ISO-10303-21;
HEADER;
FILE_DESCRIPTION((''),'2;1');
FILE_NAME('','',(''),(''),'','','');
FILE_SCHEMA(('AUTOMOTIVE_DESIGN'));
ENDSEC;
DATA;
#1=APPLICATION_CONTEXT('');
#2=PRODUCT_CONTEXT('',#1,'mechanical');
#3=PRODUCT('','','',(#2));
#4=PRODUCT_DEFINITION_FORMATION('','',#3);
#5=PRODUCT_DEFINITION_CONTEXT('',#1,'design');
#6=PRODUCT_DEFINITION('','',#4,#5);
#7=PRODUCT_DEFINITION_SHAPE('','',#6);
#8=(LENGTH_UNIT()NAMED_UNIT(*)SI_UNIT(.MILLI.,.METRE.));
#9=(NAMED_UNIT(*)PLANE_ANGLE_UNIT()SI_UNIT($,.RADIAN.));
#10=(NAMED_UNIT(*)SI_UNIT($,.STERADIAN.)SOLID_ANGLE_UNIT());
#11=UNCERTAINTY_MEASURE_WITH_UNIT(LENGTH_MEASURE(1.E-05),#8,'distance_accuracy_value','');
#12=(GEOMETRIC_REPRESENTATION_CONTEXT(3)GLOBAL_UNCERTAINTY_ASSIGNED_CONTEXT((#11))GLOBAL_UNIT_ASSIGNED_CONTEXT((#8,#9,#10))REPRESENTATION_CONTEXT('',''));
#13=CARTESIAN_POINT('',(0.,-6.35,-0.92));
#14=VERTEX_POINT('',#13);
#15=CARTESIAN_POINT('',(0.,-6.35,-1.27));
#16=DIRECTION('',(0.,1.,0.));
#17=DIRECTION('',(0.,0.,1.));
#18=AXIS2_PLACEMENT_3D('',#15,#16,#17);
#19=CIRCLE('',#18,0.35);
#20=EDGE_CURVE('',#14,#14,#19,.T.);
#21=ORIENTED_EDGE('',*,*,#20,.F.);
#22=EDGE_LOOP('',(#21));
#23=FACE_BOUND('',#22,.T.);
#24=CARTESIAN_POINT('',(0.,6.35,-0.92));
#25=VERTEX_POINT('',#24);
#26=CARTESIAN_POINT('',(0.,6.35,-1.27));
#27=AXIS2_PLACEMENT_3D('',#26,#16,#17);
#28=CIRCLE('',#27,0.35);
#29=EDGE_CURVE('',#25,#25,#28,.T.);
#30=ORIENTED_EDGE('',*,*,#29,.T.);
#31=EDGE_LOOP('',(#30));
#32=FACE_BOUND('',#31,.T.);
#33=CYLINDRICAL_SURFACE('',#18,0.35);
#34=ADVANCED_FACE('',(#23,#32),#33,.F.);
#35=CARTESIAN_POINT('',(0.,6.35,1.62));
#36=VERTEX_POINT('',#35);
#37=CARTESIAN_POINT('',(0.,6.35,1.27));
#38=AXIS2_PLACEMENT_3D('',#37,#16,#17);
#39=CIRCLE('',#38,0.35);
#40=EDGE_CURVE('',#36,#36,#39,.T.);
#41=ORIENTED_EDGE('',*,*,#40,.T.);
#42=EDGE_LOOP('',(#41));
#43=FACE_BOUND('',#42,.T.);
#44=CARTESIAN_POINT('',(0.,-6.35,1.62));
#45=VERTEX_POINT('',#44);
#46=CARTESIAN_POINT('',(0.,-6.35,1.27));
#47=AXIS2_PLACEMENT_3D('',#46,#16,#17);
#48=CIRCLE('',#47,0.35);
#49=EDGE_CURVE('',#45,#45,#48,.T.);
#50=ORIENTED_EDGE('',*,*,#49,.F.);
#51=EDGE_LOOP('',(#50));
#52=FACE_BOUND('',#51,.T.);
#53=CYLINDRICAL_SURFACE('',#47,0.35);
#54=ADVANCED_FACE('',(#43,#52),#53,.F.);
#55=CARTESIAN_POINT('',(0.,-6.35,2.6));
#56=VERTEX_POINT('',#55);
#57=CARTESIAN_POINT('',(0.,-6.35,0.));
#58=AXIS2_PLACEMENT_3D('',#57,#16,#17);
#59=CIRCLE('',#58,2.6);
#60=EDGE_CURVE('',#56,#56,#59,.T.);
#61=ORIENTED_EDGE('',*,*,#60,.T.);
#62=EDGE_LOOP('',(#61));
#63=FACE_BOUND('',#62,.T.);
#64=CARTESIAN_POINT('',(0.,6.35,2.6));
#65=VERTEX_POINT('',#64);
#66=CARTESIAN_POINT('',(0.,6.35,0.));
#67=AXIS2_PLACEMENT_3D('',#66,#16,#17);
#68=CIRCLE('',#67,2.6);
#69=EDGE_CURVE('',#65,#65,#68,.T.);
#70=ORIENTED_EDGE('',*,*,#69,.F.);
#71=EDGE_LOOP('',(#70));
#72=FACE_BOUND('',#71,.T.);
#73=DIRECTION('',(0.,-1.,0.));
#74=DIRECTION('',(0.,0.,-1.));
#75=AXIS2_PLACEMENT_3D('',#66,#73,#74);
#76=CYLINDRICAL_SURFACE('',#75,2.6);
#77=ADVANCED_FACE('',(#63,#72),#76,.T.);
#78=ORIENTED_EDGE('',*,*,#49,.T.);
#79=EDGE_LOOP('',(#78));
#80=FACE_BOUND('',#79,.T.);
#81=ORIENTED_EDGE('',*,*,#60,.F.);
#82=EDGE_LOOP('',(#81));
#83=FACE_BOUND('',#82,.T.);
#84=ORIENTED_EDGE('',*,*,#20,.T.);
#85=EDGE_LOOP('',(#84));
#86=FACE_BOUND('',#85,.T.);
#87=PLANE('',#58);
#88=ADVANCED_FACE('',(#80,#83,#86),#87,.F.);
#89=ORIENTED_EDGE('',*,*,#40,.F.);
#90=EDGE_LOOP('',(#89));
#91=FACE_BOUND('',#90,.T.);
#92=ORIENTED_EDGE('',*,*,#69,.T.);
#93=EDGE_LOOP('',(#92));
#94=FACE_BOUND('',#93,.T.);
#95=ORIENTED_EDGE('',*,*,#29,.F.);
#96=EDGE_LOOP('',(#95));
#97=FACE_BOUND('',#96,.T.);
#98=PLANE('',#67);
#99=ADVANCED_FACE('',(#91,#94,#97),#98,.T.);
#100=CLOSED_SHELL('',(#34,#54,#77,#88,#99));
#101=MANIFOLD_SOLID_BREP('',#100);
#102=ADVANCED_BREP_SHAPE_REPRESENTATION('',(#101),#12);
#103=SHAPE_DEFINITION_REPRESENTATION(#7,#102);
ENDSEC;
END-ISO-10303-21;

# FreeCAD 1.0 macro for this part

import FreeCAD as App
import Part
import Sketcher

doc = App.newDocument("Part")
params = doc.addObject("Spreadsheet::Sheet", "Params")
for row, (alias, value) in enumerate([
    ("sketch1_diameter", "5.2 mm"),
    ("pad1_length", "12.7 mm"),
    ("sketch2_diameter", "0.7 mm"),
    ("pocket1_length", "12.7 mm"),
], start=1):
    params.set(f"A{row}", alias)
    params.set(f"B{row}", "=" + value)
    params.setAlias(f"B{row}", alias)

body = doc.addObject("PartDesign::Body", "Body")

# Sketch on XZ plane
sketch1 = body.newObject("Sketcher::SketchObject", "Sketch")
sketch1.AttachmentSupport = (doc.getObject("XZ_Plane"), [""])
sketch1.MapMode = "FlatFace"
sketch1.addGeometry(Part.Circle(App.Vector(0, 0, 0), App.Vector(0, 0, 1), 2.6), False)
sketch1.addConstraint([
    Sketcher.Constraint("Coincident", 0, 3, -1, 1),
    Sketcher.Constraint("Diameter", 0, 5.2),
])
sketch1.setExpression("Constraints[1]", "Params.sketch1_diameter")
pad1 = body.newObject("PartDesign::Pad", "Pad")
pad1.Profile = sketch1
pad1.setExpression("Length", "Params.pad1_length")
pad1.Midplane = True

# Sketch on XZ plane
sketch2 = body.newObject("Sketcher::SketchObject", "Sketch001")
sketch2.AttachmentSupport = (doc.getObject("XZ_Plane"), [""])
sketch2.MapMode = "FlatFace"
sketch2.addGeometry([
    Part.Circle(App.Vector(0, 1.27, 0), App.Vector(0, 0, 1), 0.35),
    Part.Circle(App.Vector(0, -1.27, 0), App.Vector(0, 0, 1), 0.35),
], False)
sketch2.addConstraint([
    Sketcher.Constraint("Equal", 0, 1),
    Sketcher.Constraint("Symmetric", 0, 3, 1, 3, -1, 1),
    Sketcher.Constraint("PointOnObject", 0, 3, -2),
    Sketcher.Constraint("Diameter", 0, 0.7),
    Sketcher.Constraint("DistanceY", -1, 1, 0, 3, 1.27),
])
sketch2.setExpression("Constraints[3]", "Params.sketch2_diameter")
pocket1 = body.newObject("PartDesign::Pocket", "Pocket")
pocket1.Profile = sketch2
pocket1.setExpression("Length", "Params.pocket1_length")
pocket1.Midplane = True

doc.recompute()
